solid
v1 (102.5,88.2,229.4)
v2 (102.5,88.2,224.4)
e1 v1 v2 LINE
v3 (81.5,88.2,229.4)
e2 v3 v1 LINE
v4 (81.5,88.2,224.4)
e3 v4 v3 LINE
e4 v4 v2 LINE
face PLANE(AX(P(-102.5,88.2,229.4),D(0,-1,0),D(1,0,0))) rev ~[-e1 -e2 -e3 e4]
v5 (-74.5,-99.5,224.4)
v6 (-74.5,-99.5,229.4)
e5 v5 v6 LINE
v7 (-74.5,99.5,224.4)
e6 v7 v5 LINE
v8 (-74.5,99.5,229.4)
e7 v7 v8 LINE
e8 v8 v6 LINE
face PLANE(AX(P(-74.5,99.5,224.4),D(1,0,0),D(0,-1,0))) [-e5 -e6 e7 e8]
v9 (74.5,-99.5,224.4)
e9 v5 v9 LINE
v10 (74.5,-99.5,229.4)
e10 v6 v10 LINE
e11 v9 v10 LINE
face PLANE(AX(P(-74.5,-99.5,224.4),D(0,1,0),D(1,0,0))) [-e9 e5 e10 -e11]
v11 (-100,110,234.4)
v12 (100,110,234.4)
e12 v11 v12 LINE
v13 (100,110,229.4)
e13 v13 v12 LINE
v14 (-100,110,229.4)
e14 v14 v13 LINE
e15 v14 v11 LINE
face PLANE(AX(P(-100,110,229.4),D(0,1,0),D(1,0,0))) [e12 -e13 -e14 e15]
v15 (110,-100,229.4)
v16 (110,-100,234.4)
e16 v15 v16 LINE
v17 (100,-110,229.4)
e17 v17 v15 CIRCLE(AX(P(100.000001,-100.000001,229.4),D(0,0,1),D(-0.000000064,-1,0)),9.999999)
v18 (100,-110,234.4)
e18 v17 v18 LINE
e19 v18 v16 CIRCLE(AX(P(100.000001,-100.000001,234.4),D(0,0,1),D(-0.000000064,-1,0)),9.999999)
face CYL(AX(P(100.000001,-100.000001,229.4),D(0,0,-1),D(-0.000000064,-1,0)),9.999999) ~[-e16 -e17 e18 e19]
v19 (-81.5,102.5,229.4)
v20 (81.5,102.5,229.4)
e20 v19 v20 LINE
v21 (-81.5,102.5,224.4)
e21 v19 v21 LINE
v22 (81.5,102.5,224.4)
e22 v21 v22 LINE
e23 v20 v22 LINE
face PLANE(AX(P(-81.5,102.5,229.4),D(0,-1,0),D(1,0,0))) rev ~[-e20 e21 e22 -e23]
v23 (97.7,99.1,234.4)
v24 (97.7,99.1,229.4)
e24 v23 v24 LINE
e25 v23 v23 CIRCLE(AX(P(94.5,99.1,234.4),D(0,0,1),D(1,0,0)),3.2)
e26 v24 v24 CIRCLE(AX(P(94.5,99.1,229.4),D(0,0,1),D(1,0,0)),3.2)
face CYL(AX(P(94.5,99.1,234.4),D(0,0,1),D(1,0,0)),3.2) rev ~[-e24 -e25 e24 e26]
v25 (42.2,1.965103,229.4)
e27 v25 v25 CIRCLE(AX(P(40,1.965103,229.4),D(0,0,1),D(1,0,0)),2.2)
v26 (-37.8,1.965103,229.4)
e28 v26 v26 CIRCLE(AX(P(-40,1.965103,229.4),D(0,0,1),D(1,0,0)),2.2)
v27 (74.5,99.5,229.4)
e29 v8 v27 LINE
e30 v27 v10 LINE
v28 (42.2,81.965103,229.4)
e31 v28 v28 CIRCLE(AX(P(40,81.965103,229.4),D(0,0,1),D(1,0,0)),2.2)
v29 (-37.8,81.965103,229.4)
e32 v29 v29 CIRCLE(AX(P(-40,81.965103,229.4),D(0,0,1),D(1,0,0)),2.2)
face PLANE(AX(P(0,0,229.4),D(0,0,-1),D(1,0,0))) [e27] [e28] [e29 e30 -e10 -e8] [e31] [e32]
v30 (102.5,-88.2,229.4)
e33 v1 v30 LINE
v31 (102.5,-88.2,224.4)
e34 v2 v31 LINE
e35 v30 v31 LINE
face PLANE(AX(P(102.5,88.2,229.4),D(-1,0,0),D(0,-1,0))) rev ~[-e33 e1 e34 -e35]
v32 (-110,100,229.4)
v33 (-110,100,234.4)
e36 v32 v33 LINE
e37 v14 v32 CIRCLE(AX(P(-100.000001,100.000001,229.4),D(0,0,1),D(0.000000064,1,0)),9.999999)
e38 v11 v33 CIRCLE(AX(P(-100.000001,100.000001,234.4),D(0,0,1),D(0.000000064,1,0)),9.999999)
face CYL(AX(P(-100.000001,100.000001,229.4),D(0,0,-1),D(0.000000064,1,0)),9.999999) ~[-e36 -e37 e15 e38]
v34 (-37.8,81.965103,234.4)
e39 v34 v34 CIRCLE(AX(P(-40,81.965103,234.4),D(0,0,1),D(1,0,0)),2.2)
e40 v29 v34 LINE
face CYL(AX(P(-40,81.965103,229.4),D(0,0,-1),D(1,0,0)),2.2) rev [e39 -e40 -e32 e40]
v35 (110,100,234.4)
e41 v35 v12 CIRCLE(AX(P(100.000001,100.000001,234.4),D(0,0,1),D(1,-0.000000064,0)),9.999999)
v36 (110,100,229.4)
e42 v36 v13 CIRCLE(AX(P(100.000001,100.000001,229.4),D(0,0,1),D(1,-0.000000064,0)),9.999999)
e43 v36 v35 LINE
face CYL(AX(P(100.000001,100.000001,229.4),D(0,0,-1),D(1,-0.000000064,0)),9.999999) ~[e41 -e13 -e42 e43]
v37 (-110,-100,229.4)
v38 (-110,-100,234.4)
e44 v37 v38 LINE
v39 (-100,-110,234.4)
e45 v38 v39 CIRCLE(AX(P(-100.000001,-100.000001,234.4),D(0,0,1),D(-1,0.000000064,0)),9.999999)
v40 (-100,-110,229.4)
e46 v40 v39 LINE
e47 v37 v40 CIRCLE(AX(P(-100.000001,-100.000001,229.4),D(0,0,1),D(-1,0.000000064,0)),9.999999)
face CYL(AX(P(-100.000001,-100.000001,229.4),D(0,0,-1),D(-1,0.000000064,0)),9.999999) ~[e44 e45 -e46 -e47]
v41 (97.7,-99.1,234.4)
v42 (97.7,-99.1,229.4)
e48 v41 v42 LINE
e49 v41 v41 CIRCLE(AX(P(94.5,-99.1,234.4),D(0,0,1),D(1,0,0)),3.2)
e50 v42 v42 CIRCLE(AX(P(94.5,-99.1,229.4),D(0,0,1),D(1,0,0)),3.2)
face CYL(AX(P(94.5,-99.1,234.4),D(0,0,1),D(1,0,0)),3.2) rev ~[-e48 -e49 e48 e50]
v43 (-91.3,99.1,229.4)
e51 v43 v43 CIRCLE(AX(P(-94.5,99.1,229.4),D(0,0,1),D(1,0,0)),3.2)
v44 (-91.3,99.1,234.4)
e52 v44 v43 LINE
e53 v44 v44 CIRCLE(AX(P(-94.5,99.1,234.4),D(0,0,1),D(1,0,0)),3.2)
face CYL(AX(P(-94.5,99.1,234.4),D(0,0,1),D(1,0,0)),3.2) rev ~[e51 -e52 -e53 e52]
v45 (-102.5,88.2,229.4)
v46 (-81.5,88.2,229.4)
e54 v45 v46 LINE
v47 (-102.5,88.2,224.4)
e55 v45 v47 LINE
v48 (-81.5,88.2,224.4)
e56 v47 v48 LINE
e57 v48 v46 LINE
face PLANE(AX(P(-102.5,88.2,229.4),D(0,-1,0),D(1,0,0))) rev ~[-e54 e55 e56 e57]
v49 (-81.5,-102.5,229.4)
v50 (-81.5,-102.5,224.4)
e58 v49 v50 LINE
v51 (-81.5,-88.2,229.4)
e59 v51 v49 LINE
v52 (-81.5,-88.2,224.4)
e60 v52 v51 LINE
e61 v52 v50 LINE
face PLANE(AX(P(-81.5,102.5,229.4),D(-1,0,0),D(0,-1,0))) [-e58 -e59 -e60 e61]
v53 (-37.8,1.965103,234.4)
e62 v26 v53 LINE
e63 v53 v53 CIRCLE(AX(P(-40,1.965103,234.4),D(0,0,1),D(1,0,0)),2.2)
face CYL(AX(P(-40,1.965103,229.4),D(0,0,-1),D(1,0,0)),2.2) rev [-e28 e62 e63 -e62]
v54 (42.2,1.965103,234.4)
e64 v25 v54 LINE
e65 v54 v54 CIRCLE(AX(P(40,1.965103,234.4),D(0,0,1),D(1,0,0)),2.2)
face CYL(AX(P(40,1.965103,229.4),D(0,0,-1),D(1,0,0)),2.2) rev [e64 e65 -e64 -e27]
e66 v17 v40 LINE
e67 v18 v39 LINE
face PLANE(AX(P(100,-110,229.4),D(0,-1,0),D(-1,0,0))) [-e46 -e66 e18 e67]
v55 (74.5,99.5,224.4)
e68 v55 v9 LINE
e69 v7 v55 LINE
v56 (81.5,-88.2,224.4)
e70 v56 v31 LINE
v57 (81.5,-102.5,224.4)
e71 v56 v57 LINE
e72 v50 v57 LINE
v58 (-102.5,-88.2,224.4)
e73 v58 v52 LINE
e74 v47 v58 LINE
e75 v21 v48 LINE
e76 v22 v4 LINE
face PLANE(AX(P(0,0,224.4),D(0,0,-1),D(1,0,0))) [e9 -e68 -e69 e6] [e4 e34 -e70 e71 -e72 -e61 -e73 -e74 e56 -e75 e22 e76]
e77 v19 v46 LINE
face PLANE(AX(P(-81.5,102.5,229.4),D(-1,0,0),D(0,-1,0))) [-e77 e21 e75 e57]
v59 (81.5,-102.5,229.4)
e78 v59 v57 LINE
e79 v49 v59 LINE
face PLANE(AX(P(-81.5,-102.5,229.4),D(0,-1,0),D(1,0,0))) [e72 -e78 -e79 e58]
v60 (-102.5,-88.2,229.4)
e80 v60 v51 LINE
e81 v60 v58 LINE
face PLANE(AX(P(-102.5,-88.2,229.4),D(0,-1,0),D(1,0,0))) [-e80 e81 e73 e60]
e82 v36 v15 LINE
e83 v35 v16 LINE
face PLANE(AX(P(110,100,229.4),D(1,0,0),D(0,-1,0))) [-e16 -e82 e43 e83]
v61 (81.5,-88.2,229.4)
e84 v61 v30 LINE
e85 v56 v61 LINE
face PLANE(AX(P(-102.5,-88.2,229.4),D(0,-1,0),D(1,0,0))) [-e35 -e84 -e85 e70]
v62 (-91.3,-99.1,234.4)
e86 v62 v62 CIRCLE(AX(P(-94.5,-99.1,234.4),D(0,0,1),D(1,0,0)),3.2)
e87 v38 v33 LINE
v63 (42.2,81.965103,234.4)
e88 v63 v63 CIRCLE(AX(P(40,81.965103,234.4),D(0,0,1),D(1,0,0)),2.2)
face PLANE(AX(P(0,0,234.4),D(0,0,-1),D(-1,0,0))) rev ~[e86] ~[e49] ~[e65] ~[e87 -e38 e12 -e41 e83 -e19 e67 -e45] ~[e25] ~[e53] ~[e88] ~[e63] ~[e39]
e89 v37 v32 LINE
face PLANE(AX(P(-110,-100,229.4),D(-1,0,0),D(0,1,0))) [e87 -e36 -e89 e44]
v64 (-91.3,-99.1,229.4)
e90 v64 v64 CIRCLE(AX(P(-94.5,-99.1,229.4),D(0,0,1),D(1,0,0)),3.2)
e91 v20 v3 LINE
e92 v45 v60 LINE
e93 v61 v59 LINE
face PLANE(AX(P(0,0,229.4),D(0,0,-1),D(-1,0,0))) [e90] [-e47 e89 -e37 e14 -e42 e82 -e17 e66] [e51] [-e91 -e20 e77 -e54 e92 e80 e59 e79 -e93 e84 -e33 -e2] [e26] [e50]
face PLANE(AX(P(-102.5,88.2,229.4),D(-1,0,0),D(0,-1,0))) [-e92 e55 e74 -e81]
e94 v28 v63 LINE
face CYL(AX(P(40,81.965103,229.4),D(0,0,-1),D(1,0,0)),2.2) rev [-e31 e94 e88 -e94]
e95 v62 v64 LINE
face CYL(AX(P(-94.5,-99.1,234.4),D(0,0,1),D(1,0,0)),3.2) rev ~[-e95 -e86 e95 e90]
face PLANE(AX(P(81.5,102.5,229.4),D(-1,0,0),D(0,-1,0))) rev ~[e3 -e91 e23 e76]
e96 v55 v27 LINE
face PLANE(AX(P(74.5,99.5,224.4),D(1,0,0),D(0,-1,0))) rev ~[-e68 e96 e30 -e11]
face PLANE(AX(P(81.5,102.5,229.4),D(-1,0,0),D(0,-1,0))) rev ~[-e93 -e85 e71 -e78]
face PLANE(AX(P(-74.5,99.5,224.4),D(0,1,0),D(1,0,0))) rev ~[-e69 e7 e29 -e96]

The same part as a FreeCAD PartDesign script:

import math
import FreeCAD as App
import Part
import Sketcher
Q = App.Units.Quantity

doc = App.newDocument("Part")
body = doc.addObject("PartDesign::Body", "Body")

# Sketch on XY plane
sketch1 = body.newObject("Sketcher::SketchObject", "Sketch")
sketch1.AttachmentSupport = (doc.getObject("XY_Plane"), [""])
sketch1.MapMode = "FlatFace"
sketch1.addGeometry([
    Part.LineSegment(App.Vector(100, 110, 0), App.Vector(-100, 110, 0)),  # 0
    Part.ArcOfCircle(Part.Circle(App.Vector(-100, 100, 0), App.Vector(0, 0, 1), 10), math.radians(90), math.radians(180)),  # 1
    Part.LineSegment(App.Vector(-110, 100, 0), App.Vector(-110, -100, 0)),  # 2
    Part.ArcOfCircle(Part.Circle(App.Vector(-100, -100, 0), App.Vector(0, 0, 1), 10), math.radians(180), math.radians(270)),  # 3
    Part.LineSegment(App.Vector(-100, -110, 0), App.Vector(100, -110, 0)),  # 4
    Part.ArcOfCircle(Part.Circle(App.Vector(100, -100, 0), App.Vector(0, 0, 1), 10), math.radians(-90), math.radians(0)),  # 5
    Part.LineSegment(App.Vector(110, -100, 0), App.Vector(110, 100, 0)),  # 6
    Part.ArcOfCircle(Part.Circle(App.Vector(100, 100, 0), App.Vector(0, 0, 1), 10), math.radians(0), math.radians(90)),  # 7
], False)
sketch1.addConstraint([
    Sketcher.Constraint("Tangent", 0, 2, 1, 1),
    Sketcher.Constraint("Tangent", 1, 2, 2, 1),
    Sketcher.Constraint("Tangent", 2, 2, 3, 1),
    Sketcher.Constraint("Tangent", 3, 2, 4, 1),
    Sketcher.Constraint("Tangent", 4, 2, 5, 1),
    Sketcher.Constraint("Tangent", 5, 2, 6, 1),
    Sketcher.Constraint("Tangent", 6, 2, 7, 1),
    Sketcher.Constraint("Tangent", 7, 2, 0, 1),
    Sketcher.Constraint("Horizontal", 0),
    Sketcher.Constraint("Vertical", 2),
    Sketcher.Constraint("Horizontal", 4),
    Sketcher.Constraint("Vertical", 6),
    Sketcher.Constraint("Equal", 1, 3),
    Sketcher.Constraint("Equal", 3, 5),
    Sketcher.Constraint("Equal", 5, 7),
    Sketcher.Constraint("Symmetric", 1, 3, 5, 3, -1, 1),
    Sketcher.Constraint("Equal", 4, 2),
    Sketcher.Constraint("Radius", 1, Q("9.999999 mm")),
    Sketcher.Constraint("DistanceX", 0, 2, 0, 1, Q("200 mm")),
])
pad1 = body.newObject("PartDesign::Pad", "Pad")
pad1.Profile = sketch1
pad1.Length = 5

# Sketch on XY plane
sketch2 = body.newObject("Sketcher::SketchObject", "Sketch001")
sketch2.AttachmentSupport = (doc.getObject("XY_Plane"), [""])
sketch2.MapMode = "FlatFace"
sketch2.AttachmentOffset = App.Placement(App.Vector(0, 0, 5), App.Rotation())
sketch2.addGeometry([
    Part.Circle(App.Vector(-94.5, 99.1, 0), App.Vector(0, 0, 1), 3.2),
    Part.Circle(App.Vector(94.5, 99.1, 0), App.Vector(0, 0, 1), 3.2),
    Part.Circle(App.Vector(94.5, -99.1, 0), App.Vector(0, 0, 1), 3.2),
    Part.Circle(App.Vector(-94.5, -99.1, 0), App.Vector(0, 0, 1), 3.2),
], False)
sketch2.addConstraint([
    Sketcher.Constraint("Equal", 0, 1),
    Sketcher.Constraint("Equal", 1, 2),
    Sketcher.Constraint("Equal", 2, 3),
    Sketcher.Constraint("Symmetric", 0, 3, 2, 3, -1, 1),
    Sketcher.Constraint("Symmetric", 1, 3, 3, 3, -1, 1),
    Sketcher.Constraint("Symmetric", 0, 3, 1, 3, -2),
    Sketcher.Constraint("Diameter", 0, Q("6.4 mm")),
    Sketcher.Constraint("DistanceX", 0, 3, 1, 3, Q("189 mm")),
    Sketcher.Constraint("DistanceY", -1, 1, 0, 3, Q("99.1 mm")),
])
pocket1 = body.newObject("PartDesign::Pocket", "Pocket")
pocket1.Profile = sketch2
pocket1.Length = 5

# Sketch on XY plane
sketch3 = body.newObject("Sketcher::SketchObject", "Sketch002")
sketch3.AttachmentSupport = (doc.getObject("XY_Plane"), [""])
sketch3.MapMode = "FlatFace"
sketch3.addGeometry([
    Part.LineSegment(App.Vector(-82, -102, 0), App.Vector(-82, 102, 0)),
    Part.LineSegment(App.Vector(-82, 102, 0), App.Vector(82, 102, 0)),
    Part.LineSegment(App.Vector(82, 102, 0), App.Vector(82, -102, 0)),
    Part.LineSegment(App.Vector(82, -102, 0), App.Vector(-82, -102, 0)),
], False)
sketch3.addConstraint([
    Sketcher.Constraint("Coincident", 0, 2, 1, 1),
    Sketcher.Constraint("Coincident", 1, 2, 2, 1),
    Sketcher.Constraint("Coincident", 2, 2, 3, 1),
    Sketcher.Constraint("Coincident", 3, 2, 0, 1),
    Sketcher.Constraint("Vertical", 0),
    Sketcher.Constraint("Horizontal", 1),
    Sketcher.Constraint("Vertical", 2),
    Sketcher.Constraint("Horizontal", 3),
    Sketcher.Constraint("Symmetric", 0, 2, 2, 2, -1, 1),
    Sketcher.Constraint("DistanceX", 1, 1, 1, 2, Q("163 mm")),
    Sketcher.Constraint("DistanceY", 0, 1, 0, 2, Q("205 mm")),
])
pad2 = body.newObject("PartDesign::Pad", "Pad001")
pad2.Profile = sketch3
pad2.Length = 5
pad2.Reversed = True

# Sketch on XY plane
sketch4 = body.newObject("Sketcher::SketchObject", "Sketch003")
sketch4.AttachmentSupport = (doc.getObject("XY_Plane"), [""])
sketch4.MapMode = "FlatFace"
sketch4.addGeometry([
    Part.LineSegment(App.Vector(-102, -88, 0), App.Vector(-102, 88, 0)),
    Part.LineSegment(App.Vector(-102, 88, 0), App.Vector(102, 88, 0)),
    Part.LineSegment(App.Vector(102, 88, 0), App.Vector(102, -88, 0)),
    Part.LineSegment(App.Vector(102, -88, 0), App.Vector(-102, -88, 0)),
], False)
sketch4.addConstraint([
    Sketcher.Constraint("Coincident", 0, 2, 1, 1),
    Sketcher.Constraint("Coincident", 1, 2, 2, 1),
    Sketcher.Constraint("Coincident", 2, 2, 3, 1),
    Sketcher.Constraint("Coincident", 3, 2, 0, 1),
    Sketcher.Constraint("Vertical", 0),
    Sketcher.Constraint("Horizontal", 1),
    Sketcher.Constraint("Vertical", 2),
    Sketcher.Constraint("Horizontal", 3),
    Sketcher.Constraint("Symmetric", 0, 2, 2, 2, -1, 1),
    Sketcher.Constraint("DistanceX", 1, 1, 1, 2, Q("205 mm")),
    Sketcher.Constraint("DistanceY", 0, 1, 0, 2, Q("176.4 mm")),
])
pad3 = body.newObject("PartDesign::Pad", "Pad002")
pad3.Profile = sketch4
pad3.Length = 5
pad3.Reversed = True

# Sketch on XY plane
sketch5 = body.newObject("Sketcher::SketchObject", "Sketch004")
sketch5.AttachmentSupport = (doc.getObject("XY_Plane"), [""])
sketch5.MapMode = "FlatFace"
sketch5.AttachmentOffset = App.Placement(App.Vector(0, 0, -5), App.Rotation())
sketch5.addGeometry([
    Part.LineSegment(App.Vector(-74, -100, 0), App.Vector(-74, 100, 0)),
    Part.LineSegment(App.Vector(-74, 100, 0), App.Vector(74, 100, 0)),
    Part.LineSegment(App.Vector(74, 100, 0), App.Vector(74, -100, 0)),
    Part.LineSegment(App.Vector(74, -100, 0), App.Vector(-74, -100, 0)),
], False)
sketch5.addConstraint([
    Sketcher.Constraint("Coincident", 0, 2, 1, 1),
    Sketcher.Constraint("Coincident", 1, 2, 2, 1),
    Sketcher.Constraint("Coincident", 2, 2, 3, 1),
    Sketcher.Constraint("Coincident", 3, 2, 0, 1),
    Sketcher.Constraint("Vertical", 0),
    Sketcher.Constraint("Horizontal", 1),
    Sketcher.Constraint("Vertical", 2),
    Sketcher.Constraint("Horizontal", 3),
    Sketcher.Constraint("Symmetric", 0, 2, 2, 2, -1, 1),
    Sketcher.Constraint("DistanceX", 1, 1, 1, 2, Q("149 mm")),
    Sketcher.Constraint("DistanceY", 0, 1, 0, 2, Q("199 mm")),
])
pocket2 = body.newObject("PartDesign::Pocket", "Pocket001")
pocket2.Profile = sketch5
pocket2.Length = 5
pocket2.Reversed = True

# Sketch on XY plane
sketch6 = body.newObject("Sketcher::SketchObject", "Sketch005")
sketch6.AttachmentSupport = (doc.getObject("XY_Plane"), [""])
sketch6.MapMode = "FlatFace"
sketch6.addGeometry([
    Part.Circle(App.Vector(-40, 82, 0), App.Vector(0, 0, 1), 2.2),
    Part.Circle(App.Vector(40, 82, 0), App.Vector(0, 0, 1), 2.2),
    Part.Circle(App.Vector(40, 2, 0), App.Vector(0, 0, 1), 2.2),
    Part.Circle(App.Vector(-40, 2, 0), App.Vector(0, 0, 1), 2.2),
], False)
sketch6.addConstraint([
    Sketcher.Constraint("Equal", 0, 1),
    Sketcher.Constraint("Equal", 1, 2),
    Sketcher.Constraint("Equal", 2, 3),
    Sketcher.Constraint("Symmetric", 0, 3, 1, 3, -2),
    Sketcher.Constraint("Symmetric", 2, 3, 3, 3, -2),
    Sketcher.Constraint("Vertical", 1, 3, 2, 3),
    Sketcher.Constraint("Diameter", 0, Q("4.4 mm")),
    Sketcher.Constraint("DistanceX", 0, 3, -1, 1, Q("40 mm")),
    Sketcher.Constraint("DistanceY", 2, 3, 1, 3, Q("80 mm")),
    Sketcher.Constraint("DistanceY", -1, 1, 0, 3, Q("81.965103 mm")),
])
pocket3 = body.newObject("PartDesign::Pocket", "Pocket002")
pocket3.Profile = sketch6
pocket3.Length = 5
pocket3.Reversed = True
body2 = doc.addObject("PartDesign::Body", "Body001")
doc.recompute()

body.Placement = App.Placement(App.Vector(0, 0, 229.4), App.Rotation(App.Vector(0, 0, 1), 0))
boolean = body2.newObject("PartDesign::Boolean", "Boolean")
boolean.Type = "Fuse"
boolean.addObjects([body])

doc.recompute()
